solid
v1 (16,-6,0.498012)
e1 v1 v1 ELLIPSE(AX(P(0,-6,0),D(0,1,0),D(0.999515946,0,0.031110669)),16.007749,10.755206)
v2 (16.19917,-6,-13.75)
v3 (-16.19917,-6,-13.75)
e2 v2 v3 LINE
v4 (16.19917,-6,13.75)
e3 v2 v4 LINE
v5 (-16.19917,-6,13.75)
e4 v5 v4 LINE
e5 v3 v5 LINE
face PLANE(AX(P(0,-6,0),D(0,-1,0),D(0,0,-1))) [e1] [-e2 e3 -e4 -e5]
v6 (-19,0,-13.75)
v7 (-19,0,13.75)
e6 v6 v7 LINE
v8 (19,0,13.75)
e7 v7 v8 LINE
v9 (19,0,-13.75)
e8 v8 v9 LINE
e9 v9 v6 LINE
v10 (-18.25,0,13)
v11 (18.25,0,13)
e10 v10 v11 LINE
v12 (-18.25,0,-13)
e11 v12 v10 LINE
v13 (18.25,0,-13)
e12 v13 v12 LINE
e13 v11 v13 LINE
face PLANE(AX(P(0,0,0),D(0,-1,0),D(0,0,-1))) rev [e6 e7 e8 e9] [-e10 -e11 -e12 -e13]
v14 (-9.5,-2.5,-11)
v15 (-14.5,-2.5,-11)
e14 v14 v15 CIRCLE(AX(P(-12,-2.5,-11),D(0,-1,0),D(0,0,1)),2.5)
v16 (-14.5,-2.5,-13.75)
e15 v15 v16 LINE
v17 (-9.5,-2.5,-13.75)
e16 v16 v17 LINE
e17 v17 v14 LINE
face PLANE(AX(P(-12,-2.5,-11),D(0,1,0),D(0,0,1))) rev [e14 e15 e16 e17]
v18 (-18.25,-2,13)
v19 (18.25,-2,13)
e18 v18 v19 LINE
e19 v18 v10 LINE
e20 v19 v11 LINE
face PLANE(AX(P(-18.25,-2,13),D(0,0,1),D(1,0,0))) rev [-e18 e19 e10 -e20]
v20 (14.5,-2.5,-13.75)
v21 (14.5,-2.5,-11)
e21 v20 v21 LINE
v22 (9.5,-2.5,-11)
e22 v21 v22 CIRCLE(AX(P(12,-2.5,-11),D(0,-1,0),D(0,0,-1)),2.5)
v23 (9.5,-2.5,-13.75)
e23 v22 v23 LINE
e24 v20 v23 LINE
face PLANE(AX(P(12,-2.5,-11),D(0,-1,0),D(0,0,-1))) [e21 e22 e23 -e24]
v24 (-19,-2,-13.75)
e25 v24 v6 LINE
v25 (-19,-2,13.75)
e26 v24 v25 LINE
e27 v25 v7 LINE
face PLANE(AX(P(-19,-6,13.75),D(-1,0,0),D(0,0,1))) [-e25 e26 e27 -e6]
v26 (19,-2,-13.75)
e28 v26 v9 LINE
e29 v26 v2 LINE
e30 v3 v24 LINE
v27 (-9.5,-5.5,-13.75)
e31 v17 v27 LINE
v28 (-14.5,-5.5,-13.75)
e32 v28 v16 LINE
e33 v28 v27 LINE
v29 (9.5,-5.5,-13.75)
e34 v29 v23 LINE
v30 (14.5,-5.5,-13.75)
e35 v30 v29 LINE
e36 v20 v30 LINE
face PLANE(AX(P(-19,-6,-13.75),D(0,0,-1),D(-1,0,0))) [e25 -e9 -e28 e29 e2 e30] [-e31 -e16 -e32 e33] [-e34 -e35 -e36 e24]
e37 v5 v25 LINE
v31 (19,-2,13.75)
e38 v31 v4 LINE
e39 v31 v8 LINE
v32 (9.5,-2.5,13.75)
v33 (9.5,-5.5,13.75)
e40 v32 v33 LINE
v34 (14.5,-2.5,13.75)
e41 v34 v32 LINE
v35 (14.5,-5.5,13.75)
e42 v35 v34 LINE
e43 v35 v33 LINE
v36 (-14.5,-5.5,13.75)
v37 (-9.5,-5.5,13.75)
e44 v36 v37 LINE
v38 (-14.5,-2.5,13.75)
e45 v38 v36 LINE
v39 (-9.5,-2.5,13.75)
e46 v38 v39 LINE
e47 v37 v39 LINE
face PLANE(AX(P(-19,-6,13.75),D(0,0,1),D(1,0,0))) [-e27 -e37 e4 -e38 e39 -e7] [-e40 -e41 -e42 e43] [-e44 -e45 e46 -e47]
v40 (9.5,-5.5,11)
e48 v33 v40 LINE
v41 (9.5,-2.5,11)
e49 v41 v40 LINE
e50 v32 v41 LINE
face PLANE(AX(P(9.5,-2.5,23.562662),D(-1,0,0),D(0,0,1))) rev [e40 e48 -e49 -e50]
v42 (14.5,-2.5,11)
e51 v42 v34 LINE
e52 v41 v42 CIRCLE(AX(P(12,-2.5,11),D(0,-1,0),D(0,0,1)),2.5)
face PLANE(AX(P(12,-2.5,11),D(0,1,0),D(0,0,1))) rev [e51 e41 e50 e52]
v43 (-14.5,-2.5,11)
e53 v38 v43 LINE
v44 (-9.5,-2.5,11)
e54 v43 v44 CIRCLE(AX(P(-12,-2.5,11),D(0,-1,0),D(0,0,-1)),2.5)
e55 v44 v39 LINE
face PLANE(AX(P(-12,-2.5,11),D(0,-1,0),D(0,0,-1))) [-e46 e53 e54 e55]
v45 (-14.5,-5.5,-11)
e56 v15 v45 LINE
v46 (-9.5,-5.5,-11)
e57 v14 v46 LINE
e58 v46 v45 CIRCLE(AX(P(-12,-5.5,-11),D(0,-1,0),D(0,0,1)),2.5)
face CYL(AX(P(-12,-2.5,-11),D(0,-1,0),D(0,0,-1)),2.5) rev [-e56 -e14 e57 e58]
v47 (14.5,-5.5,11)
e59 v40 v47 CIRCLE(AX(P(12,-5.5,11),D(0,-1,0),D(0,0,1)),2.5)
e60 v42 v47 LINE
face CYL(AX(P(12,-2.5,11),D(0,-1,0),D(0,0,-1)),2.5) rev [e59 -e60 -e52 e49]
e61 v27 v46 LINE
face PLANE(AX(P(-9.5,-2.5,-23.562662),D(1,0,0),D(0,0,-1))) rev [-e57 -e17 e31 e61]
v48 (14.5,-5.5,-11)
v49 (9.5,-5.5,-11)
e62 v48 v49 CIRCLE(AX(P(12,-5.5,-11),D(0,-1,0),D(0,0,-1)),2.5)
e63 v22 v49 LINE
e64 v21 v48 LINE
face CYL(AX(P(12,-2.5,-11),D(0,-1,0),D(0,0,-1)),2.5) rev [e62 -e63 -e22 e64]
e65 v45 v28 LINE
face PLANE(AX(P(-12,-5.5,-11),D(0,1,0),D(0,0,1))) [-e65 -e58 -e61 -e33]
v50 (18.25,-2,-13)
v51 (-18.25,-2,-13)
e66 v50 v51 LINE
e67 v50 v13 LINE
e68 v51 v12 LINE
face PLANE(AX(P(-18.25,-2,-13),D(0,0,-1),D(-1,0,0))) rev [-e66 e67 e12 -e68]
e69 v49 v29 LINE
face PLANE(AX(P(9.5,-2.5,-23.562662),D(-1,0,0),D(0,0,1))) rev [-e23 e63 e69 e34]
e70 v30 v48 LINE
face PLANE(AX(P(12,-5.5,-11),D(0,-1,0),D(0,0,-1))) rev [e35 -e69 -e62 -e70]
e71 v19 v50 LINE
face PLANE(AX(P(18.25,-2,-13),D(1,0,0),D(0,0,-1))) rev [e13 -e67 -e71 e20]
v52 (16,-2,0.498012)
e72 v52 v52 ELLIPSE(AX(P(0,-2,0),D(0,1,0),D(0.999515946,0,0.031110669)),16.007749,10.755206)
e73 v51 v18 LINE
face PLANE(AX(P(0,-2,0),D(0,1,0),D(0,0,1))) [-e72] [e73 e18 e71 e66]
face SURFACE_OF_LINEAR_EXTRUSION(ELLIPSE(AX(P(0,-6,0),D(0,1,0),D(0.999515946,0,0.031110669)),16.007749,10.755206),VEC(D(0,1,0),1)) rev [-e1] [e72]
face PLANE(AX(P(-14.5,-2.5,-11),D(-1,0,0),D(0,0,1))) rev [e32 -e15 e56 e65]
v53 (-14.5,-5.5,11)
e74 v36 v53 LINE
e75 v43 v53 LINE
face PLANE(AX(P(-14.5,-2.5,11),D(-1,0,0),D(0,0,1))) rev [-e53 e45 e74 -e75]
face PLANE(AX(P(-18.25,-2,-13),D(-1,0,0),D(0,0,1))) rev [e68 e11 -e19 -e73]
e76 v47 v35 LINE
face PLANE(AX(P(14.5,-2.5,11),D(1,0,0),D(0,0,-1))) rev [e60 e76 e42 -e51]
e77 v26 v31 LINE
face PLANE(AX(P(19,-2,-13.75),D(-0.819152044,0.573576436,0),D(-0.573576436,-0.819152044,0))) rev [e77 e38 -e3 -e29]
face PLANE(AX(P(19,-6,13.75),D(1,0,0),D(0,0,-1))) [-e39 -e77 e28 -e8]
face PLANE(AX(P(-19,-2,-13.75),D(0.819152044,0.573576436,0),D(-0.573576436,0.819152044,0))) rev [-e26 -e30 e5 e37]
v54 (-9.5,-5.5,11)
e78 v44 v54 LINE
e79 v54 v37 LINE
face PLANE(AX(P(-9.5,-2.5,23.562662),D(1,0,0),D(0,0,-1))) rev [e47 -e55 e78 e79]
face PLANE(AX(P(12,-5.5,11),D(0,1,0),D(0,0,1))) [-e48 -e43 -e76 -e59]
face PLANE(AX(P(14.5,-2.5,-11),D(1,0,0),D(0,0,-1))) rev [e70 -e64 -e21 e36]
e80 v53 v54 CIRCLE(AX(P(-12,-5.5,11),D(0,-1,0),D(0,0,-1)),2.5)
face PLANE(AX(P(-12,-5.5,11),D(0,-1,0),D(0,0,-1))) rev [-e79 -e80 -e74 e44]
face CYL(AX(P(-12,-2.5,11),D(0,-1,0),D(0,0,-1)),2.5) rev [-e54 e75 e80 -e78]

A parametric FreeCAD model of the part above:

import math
import FreeCAD as App
import Part
import Sketcher
from FreeCAD import Vector
Q = App.Units.Quantity

doc = App.newDocument("Part")
params = doc.addObject("Spreadsheet::Sheet", "Params")
for row, (alias, value) in enumerate([
    ("sketch1_width", "38 mm"),
    ("sketch1_height", "27.5 mm"),
    ("pad1_length", "6 mm"),
    ("sketch2_height", "26 mm"),
    ("sketch2_width", "36.5 mm"),
    ("pocket1_length", "2 mm"),
    ("sketch4_radius", "2.5 mm"),
    ("pocket3_length", "3 mm"),
    ("sketch5_height", "4 mm"),
], start=1):
    params.set(f"A{row}", alias)
    params.set(f"B{row}", "=" + value)
    params.setAlias(f"B{row}", alias)

body = doc.addObject("PartDesign::Body", "Body")

sketch1 = body.newObject("Sketcher::SketchObject", "Sketch")
sketch1.AttachmentSupport = (doc.getObject("XZ_Plane"), [""])
sketch1.MapMode = "FlatFace"
sketch1.addGeometry([
    Part.LineSegment(Vector(-19, -14, 0), Vector(-19, 14, 0)),
    Part.LineSegment(Vector(-19, 14, 0), Vector(19, 14, 0)),
    Part.LineSegment(Vector(19, 14, 0), Vector(19, -14, 0)),
    Part.LineSegment(Vector(19, -14, 0), Vector(-19, -14, 0)),
], False)
sketch1.addConstraint([
    Sketcher.Constraint("Coincident", 0, 2, 1, 1),
    Sketcher.Constraint("Coincident", 1, 2, 2, 1),
    Sketcher.Constraint("Coincident", 2, 2, 3, 1),
    Sketcher.Constraint("Coincident", 3, 2, 0, 1),
    Sketcher.Constraint("Vertical", 0),
    Sketcher.Constraint("Horizontal", 1),
    Sketcher.Constraint("Vertical", 2),
    Sketcher.Constraint("Horizontal", 3),
    Sketcher.Constraint("Symmetric", 0, 2, 2, 2, -1, 1),
    Sketcher.Constraint("DistanceX", 1, 1, 1, 2, 38.0),
    Sketcher.Constraint("DistanceY", 0, 1, 0, 2, 27.5),
])
sketch1.setExpression("Constraints[9]", "Params.sketch1_width")
sketch1.setExpression("Constraints[10]", "Params.sketch1_height")
pad1 = body.newObject("PartDesign::Pad", "Pad")
pad1.Profile = sketch1
pad1.setExpression("Length", "Params.pad1_length")

sketch2 = body.newObject("Sketcher::SketchObject", "Sketch001")
sketch2.AttachmentSupport = (doc.getObject("XZ_Plane"), [""])
sketch2.MapMode = "FlatFace"
sketch2.addGeometry([
    Part.LineSegment(Vector(-18, -13, 0), Vector(-18, 13, 0)),
    Part.LineSegment(Vector(-18, 13, 0), Vector(18, 13, 0)),
    Part.LineSegment(Vector(18, 13, 0), Vector(18, -13, 0)),
    Part.LineSegment(Vector(18, -13, 0), Vector(-18, -13, 0)),
], False)
sketch2.addConstraint([
    Sketcher.Constraint("Coincident", 0, 2, 1, 1),
    Sketcher.Constraint("Coincident", 1, 2, 2, 1),
    Sketcher.Constraint("Coincident", 2, 2, 3, 1),
    Sketcher.Constraint("Coincident", 3, 2, 0, 1),
    Sketcher.Constraint("Vertical", 0),
    Sketcher.Constraint("Horizontal", 1),
    Sketcher.Constraint("Vertical", 2),
    Sketcher.Constraint("Horizontal", 3),
    Sketcher.Constraint("Symmetric", 0, 2, 2, 2, -1, 1),
    Sketcher.Constraint("DistanceY", 0, 1, 0, 2, 26.0),
    Sketcher.Constraint("DistanceX", 1, 1, 1, 2, 36.5),
])
sketch2.setExpression("Constraints[9]", "Params.sketch2_height")
sketch2.setExpression("Constraints[10]", "Params.sketch2_width")
pocket1 = body.newObject("PartDesign::Pocket", "Pocket")
pocket1.Profile = sketch2
pocket1.setExpression("Length", "Params.pocket1_length")
pocket1.Reversed = True

sketch3 = body.newObject("Sketcher::SketchObject", "Sketch002")
sketch3.AttachmentSupport = (doc.getObject("XZ_Plane"), [""])
sketch3.MapMode = "FlatFace"
sketch3.AttachmentOffset = App.Placement(Vector(0, 0, 2), App.Rotation())
sketch3.addGeometry(Part.Ellipse(Vector(16, 0.498012, 0), Vector(-0.334602, 10.75, 0), Vector(0, 0, 0)), False)
sketch3.addConstraint(Sketcher.Constraint("Block", 0))
pocket2 = body.newObject("PartDesign::Pocket", "Pocket001")
pocket2.Profile = sketch3
pocket2.Type = "ThroughAll"
pocket2.Midplane = True

sketch4 = body.newObject("Sketcher::SketchObject", "Sketch003")
sketch4.AttachmentSupport = (doc.getObject("XZ_Plane"), [""])
sketch4.MapMode = "FlatFace"
sketch4.AttachmentOffset = App.Placement(Vector(0, 0, 4), App.Rotation())
sketch4.addGeometry([
    Part.LineSegment(Vector(14.5, -23.6, 0), Vector(14.5, -11, 0)),
    Part.ArcOfCircle(Part.Circle(Vector(12, -11, 0), Vector(0, 0, 1), 2.5), math.radians(0), math.radians(180)),
    Part.LineSegment(Vector(9.5, -11, 0), Vector(9.5, -23.6, 0)),
    Part.LineSegment(Vector(9.5, -23.6, 0), Vector(14.5, -23.6, 0)),
    Part.LineSegment(Vector(-9.5, -23.6, 0), Vector(-9.5, -11, 0)),
    Part.ArcOfCircle(Part.Circle(Vector(-12, -11, 0), Vector(0, 0, 1), 2.5), math.radians(0), math.radians(180)),
    Part.LineSegment(Vector(-14.5, -11, 0), Vector(-14.5, -23.6, 0)),
    Part.LineSegment(Vector(-14.5, -23.6, 0), Vector(-9.5, -23.6, 0)),
    Part.LineSegment(Vector(-14.5, 23.6, 0), Vector(-14.5, 11, 0)),
    Part.ArcOfCircle(Part.Circle(Vector(-12, 11, 0), Vector(0, 0, 1), 2.5), math.radians(180), math.radians(360)),
    Part.LineSegment(Vector(-9.5, 11, 0), Vector(-9.5, 23.6, 0)),
    Part.LineSegment(Vector(-9.5, 23.6, 0), Vector(-14.5, 23.6, 0)),
    Part.LineSegment(Vector(9.5, 23.6, 0), Vector(9.5, 11, 0)),
    Part.ArcOfCircle(Part.Circle(Vector(12, 11, 0), Vector(0, 0, 1), 2.5), math.radians(180), math.radians(360)),
    Part.LineSegment(Vector(14.5, 11, 0), Vector(14.5, 23.6, 0)),
    Part.LineSegment(Vector(14.5, 23.6, 0), Vector(9.5, 23.6, 0)),
], False)
sketch4.addConstraint([
    Sketcher.Constraint("Tangent", 0, 2, 1, 1),
    Sketcher.Constraint("Tangent", 1, 2, 2, 1),
    Sketcher.Constraint("Coincident", 2, 2, 3, 1),
    Sketcher.Constraint("Coincident", 3, 2, 0, 1),
    Sketcher.Constraint("Tangent", 4, 2, 5, 1),
    Sketcher.Constraint("Tangent", 5, 2, 6, 1),
    Sketcher.Constraint("Coincident", 6, 2, 7, 1),
    Sketcher.Constraint("Coincident", 7, 2, 4, 1),
    Sketcher.Constraint("Tangent", 8, 2, 9, 1),
    Sketcher.Constraint("Tangent", 9, 2, 10, 1),
    Sketcher.Constraint("Coincident", 10, 2, 11, 1),
    Sketcher.Constraint("Coincident", 11, 2, 8, 1),
    Sketcher.Constraint("Tangent", 12, 2, 13, 1),
    Sketcher.Constraint("Tangent", 13, 2, 14, 1),
    Sketcher.Constraint("Coincident", 14, 2, 15, 1),
    Sketcher.Constraint("Coincident", 15, 2, 12, 1),
    Sketcher.Constraint("Vertical", 0),
    Sketcher.Constraint("Vertical", 2),
    Sketcher.Constraint("Horizontal", 3),
    Sketcher.Constraint("Vertical", 4),
    Sketcher.Constraint("Vertical", 6),
    Sketcher.Constraint("Horizontal", 7),
    Sketcher.Constraint("Vertical", 8),
    Sketcher.Constraint("Vertical", 10),
    Sketcher.Constraint("Horizontal", 11),
    Sketcher.Constraint("Vertical", 12),
    Sketcher.Constraint("Vertical", 14),
    Sketcher.Constraint("Horizontal", 15),
    Sketcher.Constraint("Equal", 1, 5),
    Sketcher.Constraint("Equal", 5, 9),
    Sketcher.Constraint("Equal", 9, 13),
    Sketcher.Constraint("Symmetric", 1, 3, 9, 3, -1, 1),
    Sketcher.Constraint("Symmetric", 5, 3, 13, 3, -1, 1),
    Sketcher.Constraint("Symmetric", 1, 3, 5, 3, -2),
    Sketcher.Constraint("Horizontal", 3, 2, 6, 2),
    Sketcher.Constraint("Horizontal", 11, 2, 14, 2),
    Sketcher.Constraint("Equal", 6, 8),
    Sketcher.Constraint("Radius", 1, 2.5),
    Sketcher.Constraint("DistanceX", -1, 1, 1, 3, 12.0),
    Sketcher.Constraint("DistanceY", 1, 3, -1, 1, 11.0),
    Sketcher.Constraint("DistanceY", 0, 1, 0, 2, 12.562662),
])
sketch4.setExpression("Constraints[37]", "Params.sketch4_radius")
pocket3 = body.newObject("PartDesign::Pocket", "Pocket002")
pocket3.Profile = sketch4
pocket3.setExpression("Length", "Params.pocket3_length")
pocket3.Midplane = True

sketch5 = body.newObject("Sketcher::SketchObject", "Sketch004")
sketch5.AttachmentSupport = (doc.getObject("XY_Plane"), [""])
sketch5.MapMode = "FlatFace"
sketch5.addGeometry([
    Part.LineSegment(Vector(-16.2, -6, 0), Vector(-19, -2, 0)),
    Part.LineSegment(Vector(-19, -2, 0), Vector(-19, -6, 0)),
    Part.LineSegment(Vector(-19, -6, 0), Vector(-16.2, -6, 0)),
    Part.LineSegment(Vector(16.2, -6, 0), Vector(19, -6, 0)),
    Part.LineSegment(Vector(19, -6, 0), Vector(19, -2, 0)),
    Part.LineSegment(Vector(19, -2, 0), Vector(16.2, -6, 0)),
], False)
sketch5.addConstraint([
    Sketcher.Constraint("Coincident", 0, 2, 1, 1),
    Sketcher.Constraint("Coincident", 1, 2, 2, 1),
    Sketcher.Constraint("Coincident", 2, 2, 0, 1),
    Sketcher.Constraint("Coincident", 3, 2, 4, 1),
    Sketcher.Constraint("Coincident", 4, 2, 5, 1),
    Sketcher.Constraint("Coincident", 5, 2, 3, 1),
    Sketcher.Constraint("Vertical", 1),
    Sketcher.Constraint("Horizontal", 2),
    Sketcher.Constraint("Horizontal", 3),
    Sketcher.Constraint("Vertical", 4),
    Sketcher.Constraint("Symmetric", 1, 2, 3, 2, -2),
    Sketcher.Constraint("Horizontal", 0, 2, 4, 2),
    Sketcher.Constraint("Equal", 2, 3),
    Sketcher.Constraint("DistanceY", 1, 2, 1, 1, 4.0),
    Sketcher.Constraint("Angle", 0, Q("125 deg")),
    Sketcher.Constraint("DistanceX", 0, 2, -1, 1, 19.0),
    Sketcher.Constraint("DistanceY", 0, 2, -1, 1, 2.0),
])
sketch5.setExpression("Constraints[13]", "Params.sketch5_height")
pocket4 = body.newObject("PartDesign::Pocket", "Pocket003")
pocket4.Profile = sketch5
pocket4.Type = "ThroughAll"
pocket4.Midplane = True

doc.recompute()
